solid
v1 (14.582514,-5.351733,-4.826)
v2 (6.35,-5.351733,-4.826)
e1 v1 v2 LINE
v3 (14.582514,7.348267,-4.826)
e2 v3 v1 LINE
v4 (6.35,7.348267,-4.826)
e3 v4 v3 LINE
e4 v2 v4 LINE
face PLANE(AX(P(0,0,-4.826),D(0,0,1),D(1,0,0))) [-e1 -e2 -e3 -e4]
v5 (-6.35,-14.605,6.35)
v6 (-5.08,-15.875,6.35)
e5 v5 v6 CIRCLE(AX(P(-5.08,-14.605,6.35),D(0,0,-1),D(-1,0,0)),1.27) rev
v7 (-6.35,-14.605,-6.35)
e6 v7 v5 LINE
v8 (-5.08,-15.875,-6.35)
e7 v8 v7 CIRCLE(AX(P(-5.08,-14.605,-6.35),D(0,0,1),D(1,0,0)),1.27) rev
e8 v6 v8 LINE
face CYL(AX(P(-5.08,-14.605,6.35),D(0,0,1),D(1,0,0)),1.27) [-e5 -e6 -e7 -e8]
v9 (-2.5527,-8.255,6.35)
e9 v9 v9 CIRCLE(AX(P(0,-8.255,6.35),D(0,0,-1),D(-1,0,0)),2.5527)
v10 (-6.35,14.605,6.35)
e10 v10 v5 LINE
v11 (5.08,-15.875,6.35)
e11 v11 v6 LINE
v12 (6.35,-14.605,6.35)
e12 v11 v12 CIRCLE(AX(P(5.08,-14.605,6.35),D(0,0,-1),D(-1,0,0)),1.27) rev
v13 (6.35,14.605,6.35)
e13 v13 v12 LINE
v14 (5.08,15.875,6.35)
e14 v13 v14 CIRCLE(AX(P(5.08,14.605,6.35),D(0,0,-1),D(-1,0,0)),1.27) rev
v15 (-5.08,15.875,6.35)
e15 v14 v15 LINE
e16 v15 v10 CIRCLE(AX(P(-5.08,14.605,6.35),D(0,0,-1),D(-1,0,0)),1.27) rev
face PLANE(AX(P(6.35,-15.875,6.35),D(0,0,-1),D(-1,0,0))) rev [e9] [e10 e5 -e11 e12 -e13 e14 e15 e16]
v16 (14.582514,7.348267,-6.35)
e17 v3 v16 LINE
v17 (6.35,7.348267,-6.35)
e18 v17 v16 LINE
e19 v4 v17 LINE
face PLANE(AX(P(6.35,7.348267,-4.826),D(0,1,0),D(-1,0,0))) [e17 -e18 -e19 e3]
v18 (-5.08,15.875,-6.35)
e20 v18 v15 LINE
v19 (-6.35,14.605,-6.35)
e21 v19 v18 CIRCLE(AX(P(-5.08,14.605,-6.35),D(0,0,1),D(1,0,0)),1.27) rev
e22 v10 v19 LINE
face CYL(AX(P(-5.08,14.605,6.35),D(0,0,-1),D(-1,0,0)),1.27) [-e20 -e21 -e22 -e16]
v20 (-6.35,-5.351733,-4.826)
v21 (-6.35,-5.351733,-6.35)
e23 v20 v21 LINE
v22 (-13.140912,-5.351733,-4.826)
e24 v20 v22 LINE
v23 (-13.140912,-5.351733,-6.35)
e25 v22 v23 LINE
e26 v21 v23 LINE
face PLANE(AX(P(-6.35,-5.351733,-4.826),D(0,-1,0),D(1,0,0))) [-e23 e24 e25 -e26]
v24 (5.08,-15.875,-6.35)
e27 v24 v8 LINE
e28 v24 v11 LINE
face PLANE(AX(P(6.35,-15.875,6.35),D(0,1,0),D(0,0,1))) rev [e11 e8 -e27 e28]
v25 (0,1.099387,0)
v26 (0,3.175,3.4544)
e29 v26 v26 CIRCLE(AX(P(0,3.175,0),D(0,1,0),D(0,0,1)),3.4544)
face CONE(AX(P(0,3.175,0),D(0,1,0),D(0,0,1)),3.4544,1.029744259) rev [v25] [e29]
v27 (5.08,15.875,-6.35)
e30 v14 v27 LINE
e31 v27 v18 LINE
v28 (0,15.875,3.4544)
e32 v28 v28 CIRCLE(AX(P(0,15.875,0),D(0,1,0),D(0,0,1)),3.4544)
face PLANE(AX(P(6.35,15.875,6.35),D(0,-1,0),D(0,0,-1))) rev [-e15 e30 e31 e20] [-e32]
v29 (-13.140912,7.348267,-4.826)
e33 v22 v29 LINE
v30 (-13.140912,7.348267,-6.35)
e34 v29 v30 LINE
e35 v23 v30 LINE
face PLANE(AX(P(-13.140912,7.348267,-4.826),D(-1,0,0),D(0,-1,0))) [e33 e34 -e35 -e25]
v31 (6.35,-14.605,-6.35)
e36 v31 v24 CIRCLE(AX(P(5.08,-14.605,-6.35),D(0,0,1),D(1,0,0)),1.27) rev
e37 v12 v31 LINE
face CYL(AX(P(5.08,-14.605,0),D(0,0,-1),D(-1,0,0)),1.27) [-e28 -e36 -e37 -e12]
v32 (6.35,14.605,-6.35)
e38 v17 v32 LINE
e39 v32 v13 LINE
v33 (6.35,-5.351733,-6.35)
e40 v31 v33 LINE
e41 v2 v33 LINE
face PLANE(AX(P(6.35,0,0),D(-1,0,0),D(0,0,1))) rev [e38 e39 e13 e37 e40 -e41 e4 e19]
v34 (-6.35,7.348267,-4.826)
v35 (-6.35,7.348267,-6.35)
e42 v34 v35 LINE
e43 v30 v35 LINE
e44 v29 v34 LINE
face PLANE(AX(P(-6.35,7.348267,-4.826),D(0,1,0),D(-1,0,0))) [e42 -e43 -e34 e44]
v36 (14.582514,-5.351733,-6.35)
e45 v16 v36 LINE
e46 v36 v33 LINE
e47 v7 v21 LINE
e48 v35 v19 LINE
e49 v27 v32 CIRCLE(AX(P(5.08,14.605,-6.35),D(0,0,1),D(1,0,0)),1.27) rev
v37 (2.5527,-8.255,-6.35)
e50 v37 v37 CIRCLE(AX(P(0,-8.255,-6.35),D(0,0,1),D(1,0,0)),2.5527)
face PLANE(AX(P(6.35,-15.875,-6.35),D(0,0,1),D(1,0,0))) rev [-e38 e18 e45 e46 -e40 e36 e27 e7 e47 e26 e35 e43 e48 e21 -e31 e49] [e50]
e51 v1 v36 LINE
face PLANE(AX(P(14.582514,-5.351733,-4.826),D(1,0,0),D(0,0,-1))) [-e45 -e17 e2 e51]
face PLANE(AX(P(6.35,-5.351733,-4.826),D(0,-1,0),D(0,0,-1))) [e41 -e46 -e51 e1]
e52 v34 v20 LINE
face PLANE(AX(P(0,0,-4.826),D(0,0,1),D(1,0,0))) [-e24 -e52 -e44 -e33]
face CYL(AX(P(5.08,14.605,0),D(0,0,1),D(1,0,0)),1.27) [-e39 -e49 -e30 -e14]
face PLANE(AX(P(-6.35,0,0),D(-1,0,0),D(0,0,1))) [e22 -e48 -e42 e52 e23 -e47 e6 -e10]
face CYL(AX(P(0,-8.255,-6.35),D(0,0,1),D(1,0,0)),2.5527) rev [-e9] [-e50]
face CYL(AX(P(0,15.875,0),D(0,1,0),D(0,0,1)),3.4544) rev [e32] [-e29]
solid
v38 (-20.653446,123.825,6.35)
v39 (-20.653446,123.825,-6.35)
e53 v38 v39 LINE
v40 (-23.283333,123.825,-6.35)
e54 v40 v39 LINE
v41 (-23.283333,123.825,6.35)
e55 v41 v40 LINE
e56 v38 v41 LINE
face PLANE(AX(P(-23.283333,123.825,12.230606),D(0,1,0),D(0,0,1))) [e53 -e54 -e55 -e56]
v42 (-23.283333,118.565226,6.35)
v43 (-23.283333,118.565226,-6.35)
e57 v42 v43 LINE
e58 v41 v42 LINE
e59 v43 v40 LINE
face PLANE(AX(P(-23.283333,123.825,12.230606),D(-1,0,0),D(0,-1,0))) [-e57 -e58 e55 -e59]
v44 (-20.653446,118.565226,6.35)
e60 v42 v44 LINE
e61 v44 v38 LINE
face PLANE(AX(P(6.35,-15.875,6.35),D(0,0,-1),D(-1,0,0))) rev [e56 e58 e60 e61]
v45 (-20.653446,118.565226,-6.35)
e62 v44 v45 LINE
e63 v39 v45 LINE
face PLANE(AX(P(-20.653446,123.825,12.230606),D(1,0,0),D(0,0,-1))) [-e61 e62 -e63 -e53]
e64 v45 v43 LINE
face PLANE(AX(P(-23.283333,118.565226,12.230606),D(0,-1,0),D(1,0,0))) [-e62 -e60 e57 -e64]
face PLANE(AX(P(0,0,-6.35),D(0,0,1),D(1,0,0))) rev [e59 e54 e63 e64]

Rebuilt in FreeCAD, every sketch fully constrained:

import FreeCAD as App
import Part
import Sketcher

V = App.Vector
Q = App.Units.Quantity


def edges_at(feature, points):
    """Names of the edges that pass closest to the given points."""
    edges = feature.Shape.Edges
    near = lambda p: min(range(len(edges)), key=lambda i: edges[i].distToShape(Part.Vertex(*p))[0])
    return sorted({f"Edge{near(p) + 1}" for p in points})

doc = App.newDocument("Part")
body = doc.addObject("PartDesign::Body", "Body")

sketch1 = body.newObject("Sketcher::SketchObject", "Sketch")
sketch1.AttachmentSupport = (doc.getObject("YZ_Plane"), [""])
sketch1.MapMode = "FlatFace"
sketch1.addGeometry(Part.LineSegment(V(16, 6, 0), V(-16, 6, 0)), False)
sketch1.addGeometry(Part.LineSegment(V(-16, 6, 0), V(-16, -6, 0)), False)
sketch1.addGeometry(Part.LineSegment(V(-16, -6, 0), V(16, -6, 0)), False)
sketch1.addGeometry(Part.LineSegment(V(16, -6, 0), V(16, 6, 0)), False)
sketch1.addConstraint(Sketcher.Constraint("Coincident", 0, 2, 1, 1))
sketch1.addConstraint(Sketcher.Constraint("Coincident", 1, 2, 2, 1))
sketch1.addConstraint(Sketcher.Constraint("Coincident", 2, 2, 3, 1))
sketch1.addConstraint(Sketcher.Constraint("Coincident", 3, 2, 0, 1))
sketch1.addConstraint(Sketcher.Constraint("Horizontal", 0))
sketch1.addConstraint(Sketcher.Constraint("Vertical", 1))
sketch1.addConstraint(Sketcher.Constraint("Horizontal", 2))
sketch1.addConstraint(Sketcher.Constraint("Vertical", 3))
sketch1.addConstraint(Sketcher.Constraint("Symmetric", 0, 2, 2, 2, -1, 1))
sketch1.addConstraint(Sketcher.Constraint("DistanceY", 1, 2, 1, 1, Q("0.5 in")))
sketch1.addConstraint(Sketcher.Constraint("DistanceX", 0, 2, 0, 1, Q("1.25 in")))
pad1 = body.newObject("PartDesign::Pad", "Pad")
pad1.Profile = sketch1
pad1.Length = Q("0.5 in")
pad1.Midplane = True

sketch2 = body.newObject("Sketcher::SketchObject", "Sketch001")
sketch2.AttachmentSupport = (doc.getObject("XZ_Plane"), [""])
sketch2.MapMode = "FlatFace"
sketch2.AttachmentOffset = App.Placement(V(0, 0, -0.625 * 25.4), App.Rotation())
sketch2.addGeometry(Part.Circle(V(0, 0, 0), V(0, 0, 1), 3.5), False)
sketch2.addConstraint(Sketcher.Constraint("Coincident", 0, 3, -1, 1))
sketch2.addConstraint(Sketcher.Constraint("Diameter", 0, Q("0.272 in")))
doc.recompute()
hole = body.newObject("PartDesign::Hole", "Hole")
hole.Profile = sketch2
hole.ThreadType = "None"
hole.Diameter = Q("0.272 in")
hole.DepthType = "Dimension"
hole.Depth = Q("0.5 in")
hole.DrillPoint = "Angled"
hole.DrillPointAngle = 118
hole.Reversed = True

sketch3 = body.newObject("Sketcher::SketchObject", "Sketch002")
sketch3.AttachmentSupport = (doc.getObject("XY_Plane"), [""])
sketch3.MapMode = "FlatFace"
sketch3.AttachmentOffset = App.Placement(V(0, 0, 0.25 * 25.4), App.Rotation())
sketch3.addGeometry(Part.Circle(V(0, -8.3, 0), V(0, 0, 1), 2.6), False)
sketch3.addConstraint(Sketcher.Constraint("PointOnObject", 0, 3, -2))
sketch3.addConstraint(Sketcher.Constraint("Diameter", 0, Q("0.201 in")))
sketch3.addConstraint(Sketcher.Constraint("DistanceY", 0, 3, -1, 1, Q("0.325 in")))
pocket1 = body.newObject("PartDesign::Pocket", "Pocket")
pocket1.Profile = sketch3
pocket1.Type = "ThroughAll"
pocket1.Midplane = True

sketch4 = body.newObject("Sketcher::SketchObject", "Sketch003")
sketch4.AttachmentSupport = (doc.getObject("XY_Plane"), [""])
sketch4.MapMode = "FlatFace"
sketch4.AttachmentOffset = App.Placement(V(0, 0, -0.25 * 25.4), App.Rotation())
sketch4.addGeometry(Part.LineSegment(V(-6, 7, 0), V(-6, -5, 0)), False)
sketch4.addGeometry(Part.LineSegment(V(-6, -5, 0), V(-13, -5, 0)), False)
sketch4.addGeometry(Part.LineSegment(V(-13, -5, 0), V(-13, 7, 0)), False)
sketch4.addGeometry(Part.LineSegment(V(-13, 7, 0), V(-6, 7, 0)), False)
sketch4.addGeometry(Part.LineSegment(V(15, 7, 0), V(15, -5, 0)), False)
sketch4.addGeometry(Part.LineSegment(V(15, -5, 0), V(6, -5, 0)), False)
sketch4.addGeometry(Part.LineSegment(V(6, -5, 0), V(6, 7, 0)), False)
sketch4.addGeometry(Part.LineSegment(V(6, 7, 0), V(15, 7, 0)), False)
sketch4.addConstraint(Sketcher.Constraint("Coincident", 0, 2, 1, 1))
sketch4.addConstraint(Sketcher.Constraint("Coincident", 1, 2, 2, 1))
sketch4.addConstraint(Sketcher.Constraint("Coincident", 2, 2, 3, 1))
sketch4.addConstraint(Sketcher.Constraint("Coincident", 3, 2, 0, 1))
sketch4.addConstraint(Sketcher.Constraint("Coincident", 4, 2, 5, 1))
sketch4.addConstraint(Sketcher.Constraint("Coincident", 5, 2, 6, 1))
sketch4.addConstraint(Sketcher.Constraint("Coincident", 6, 2, 7, 1))
sketch4.addConstraint(Sketcher.Constraint("Coincident", 7, 2, 4, 1))
sketch4.addConstraint(Sketcher.Constraint("Vertical", 0))
sketch4.addConstraint(Sketcher.Constraint("Horizontal", 1))
sketch4.addConstraint(Sketcher.Constraint("Vertical", 2))
sketch4.addConstraint(Sketcher.Constraint("Horizontal", 3))
sketch4.addConstraint(Sketcher.Constraint("Vertical", 4))
sketch4.addConstraint(Sketcher.Constraint("Horizontal", 5))
sketch4.addConstraint(Sketcher.Constraint("Vertical", 6))
sketch4.addConstraint(Sketcher.Constraint("Horizontal", 7))
sketch4.addConstraint(Sketcher.Constraint("Symmetric", 0, 2, 5, 2, -2))
sketch4.addConstraint(Sketcher.Constraint("Horizontal", 3, 2, 6, 2))
sketch4.addConstraint(Sketcher.Constraint("DistanceY", 0, 2, 0, 1, Q("0.5 in")))
sketch4.addConstraint(Sketcher.Constraint("DistanceX", 0, 2, 5, 2, Q("0.5 in")))
sketch4.addConstraint(Sketcher.Constraint("DistanceX", 1, 2, 1, 1, Q("6.790912 mm")))
sketch4.addConstraint(Sketcher.Constraint("DistanceX", 5, 2, 5, 1, Q("8.232514 mm")))
sketch4.addConstraint(Sketcher.Constraint("DistanceY", 0, 2, -1, 1, Q("5.351733 mm")))
pad2 = body.newObject("PartDesign::Pad", "Pad001")
pad2.Profile = sketch4
pad2.Length = Q("0.06 in")
doc.recompute()

fillet = body.newObject("PartDesign::Fillet", "Fillet")
fillet.Base = (pad2, edges_at(pad2, [
    (6.35, -15.875, 0),
    (-6.35, -15.875, 0),
    (-6.35, 15.875, 0),
    (6.35, 15.875, 0),
]))
fillet.Radius = Q("0.05 in")
body2 = doc.addObject("PartDesign::Body", "Body001")

sketch5 = body2.newObject("Sketcher::SketchObject", "Sketch004")
sketch5.AttachmentSupport = (doc.getObject("XY_Plane001"), [""])
sketch5.MapMode = "FlatFace"
sketch5.AttachmentOffset = App.Placement(V(0, 0, -0.25 * 25.4), App.Rotation())
sketch5.addGeometry(Part.LineSegment(V(-20.7, 123.8, 0), V(-20.7, 118.6, 0)), False)
sketch5.addGeometry(Part.LineSegment(V(-20.7, 118.6, 0), V(-23.3, 118.6, 0)), False)
sketch5.addGeometry(Part.LineSegment(V(-23.3, 118.6, 0), V(-23.3, 123.8, 0)), False)
sketch5.addGeometry(Part.LineSegment(V(-23.3, 123.8, 0), V(-20.7, 123.8, 0)), False)
sketch5.addConstraint(Sketcher.Constraint("Coincident", 0, 2, 1, 1))
sketch5.addConstraint(Sketcher.Constraint("Coincident", 1, 2, 2, 1))
sketch5.addConstraint(Sketcher.Constraint("Coincident", 2, 2, 3, 1))
sketch5.addConstraint(Sketcher.Constraint("Coincident", 3, 2, 0, 1))
sketch5.addConstraint(Sketcher.Constraint("Vertical", 0))
sketch5.addConstraint(Sketcher.Constraint("Horizontal", 1))
sketch5.addConstraint(Sketcher.Constraint("Vertical", 2))
sketch5.addConstraint(Sketcher.Constraint("Horizontal", 3))
sketch5.addConstraint(Sketcher.Constraint("DistanceY", -1, 1, 2, 2, Q("4.875 in")))
sketch5.addConstraint(Sketcher.Constraint("DistanceX", 1, 2, 1, 1, Q("2.629887 mm")))
sketch5.addConstraint(Sketcher.Constraint("DistanceY", 0, 2, 0, 1, Q("5.259774 mm")))
sketch5.addConstraint(Sketcher.Constraint("DistanceX", 0, 2, -1, 1, Q("20.653446 mm")))
pad3 = body2.newObject("PartDesign::Pad", "Pad002")
pad3.Profile = sketch5
pad3.Length = Q("0.5 in")

doc.recompute()
